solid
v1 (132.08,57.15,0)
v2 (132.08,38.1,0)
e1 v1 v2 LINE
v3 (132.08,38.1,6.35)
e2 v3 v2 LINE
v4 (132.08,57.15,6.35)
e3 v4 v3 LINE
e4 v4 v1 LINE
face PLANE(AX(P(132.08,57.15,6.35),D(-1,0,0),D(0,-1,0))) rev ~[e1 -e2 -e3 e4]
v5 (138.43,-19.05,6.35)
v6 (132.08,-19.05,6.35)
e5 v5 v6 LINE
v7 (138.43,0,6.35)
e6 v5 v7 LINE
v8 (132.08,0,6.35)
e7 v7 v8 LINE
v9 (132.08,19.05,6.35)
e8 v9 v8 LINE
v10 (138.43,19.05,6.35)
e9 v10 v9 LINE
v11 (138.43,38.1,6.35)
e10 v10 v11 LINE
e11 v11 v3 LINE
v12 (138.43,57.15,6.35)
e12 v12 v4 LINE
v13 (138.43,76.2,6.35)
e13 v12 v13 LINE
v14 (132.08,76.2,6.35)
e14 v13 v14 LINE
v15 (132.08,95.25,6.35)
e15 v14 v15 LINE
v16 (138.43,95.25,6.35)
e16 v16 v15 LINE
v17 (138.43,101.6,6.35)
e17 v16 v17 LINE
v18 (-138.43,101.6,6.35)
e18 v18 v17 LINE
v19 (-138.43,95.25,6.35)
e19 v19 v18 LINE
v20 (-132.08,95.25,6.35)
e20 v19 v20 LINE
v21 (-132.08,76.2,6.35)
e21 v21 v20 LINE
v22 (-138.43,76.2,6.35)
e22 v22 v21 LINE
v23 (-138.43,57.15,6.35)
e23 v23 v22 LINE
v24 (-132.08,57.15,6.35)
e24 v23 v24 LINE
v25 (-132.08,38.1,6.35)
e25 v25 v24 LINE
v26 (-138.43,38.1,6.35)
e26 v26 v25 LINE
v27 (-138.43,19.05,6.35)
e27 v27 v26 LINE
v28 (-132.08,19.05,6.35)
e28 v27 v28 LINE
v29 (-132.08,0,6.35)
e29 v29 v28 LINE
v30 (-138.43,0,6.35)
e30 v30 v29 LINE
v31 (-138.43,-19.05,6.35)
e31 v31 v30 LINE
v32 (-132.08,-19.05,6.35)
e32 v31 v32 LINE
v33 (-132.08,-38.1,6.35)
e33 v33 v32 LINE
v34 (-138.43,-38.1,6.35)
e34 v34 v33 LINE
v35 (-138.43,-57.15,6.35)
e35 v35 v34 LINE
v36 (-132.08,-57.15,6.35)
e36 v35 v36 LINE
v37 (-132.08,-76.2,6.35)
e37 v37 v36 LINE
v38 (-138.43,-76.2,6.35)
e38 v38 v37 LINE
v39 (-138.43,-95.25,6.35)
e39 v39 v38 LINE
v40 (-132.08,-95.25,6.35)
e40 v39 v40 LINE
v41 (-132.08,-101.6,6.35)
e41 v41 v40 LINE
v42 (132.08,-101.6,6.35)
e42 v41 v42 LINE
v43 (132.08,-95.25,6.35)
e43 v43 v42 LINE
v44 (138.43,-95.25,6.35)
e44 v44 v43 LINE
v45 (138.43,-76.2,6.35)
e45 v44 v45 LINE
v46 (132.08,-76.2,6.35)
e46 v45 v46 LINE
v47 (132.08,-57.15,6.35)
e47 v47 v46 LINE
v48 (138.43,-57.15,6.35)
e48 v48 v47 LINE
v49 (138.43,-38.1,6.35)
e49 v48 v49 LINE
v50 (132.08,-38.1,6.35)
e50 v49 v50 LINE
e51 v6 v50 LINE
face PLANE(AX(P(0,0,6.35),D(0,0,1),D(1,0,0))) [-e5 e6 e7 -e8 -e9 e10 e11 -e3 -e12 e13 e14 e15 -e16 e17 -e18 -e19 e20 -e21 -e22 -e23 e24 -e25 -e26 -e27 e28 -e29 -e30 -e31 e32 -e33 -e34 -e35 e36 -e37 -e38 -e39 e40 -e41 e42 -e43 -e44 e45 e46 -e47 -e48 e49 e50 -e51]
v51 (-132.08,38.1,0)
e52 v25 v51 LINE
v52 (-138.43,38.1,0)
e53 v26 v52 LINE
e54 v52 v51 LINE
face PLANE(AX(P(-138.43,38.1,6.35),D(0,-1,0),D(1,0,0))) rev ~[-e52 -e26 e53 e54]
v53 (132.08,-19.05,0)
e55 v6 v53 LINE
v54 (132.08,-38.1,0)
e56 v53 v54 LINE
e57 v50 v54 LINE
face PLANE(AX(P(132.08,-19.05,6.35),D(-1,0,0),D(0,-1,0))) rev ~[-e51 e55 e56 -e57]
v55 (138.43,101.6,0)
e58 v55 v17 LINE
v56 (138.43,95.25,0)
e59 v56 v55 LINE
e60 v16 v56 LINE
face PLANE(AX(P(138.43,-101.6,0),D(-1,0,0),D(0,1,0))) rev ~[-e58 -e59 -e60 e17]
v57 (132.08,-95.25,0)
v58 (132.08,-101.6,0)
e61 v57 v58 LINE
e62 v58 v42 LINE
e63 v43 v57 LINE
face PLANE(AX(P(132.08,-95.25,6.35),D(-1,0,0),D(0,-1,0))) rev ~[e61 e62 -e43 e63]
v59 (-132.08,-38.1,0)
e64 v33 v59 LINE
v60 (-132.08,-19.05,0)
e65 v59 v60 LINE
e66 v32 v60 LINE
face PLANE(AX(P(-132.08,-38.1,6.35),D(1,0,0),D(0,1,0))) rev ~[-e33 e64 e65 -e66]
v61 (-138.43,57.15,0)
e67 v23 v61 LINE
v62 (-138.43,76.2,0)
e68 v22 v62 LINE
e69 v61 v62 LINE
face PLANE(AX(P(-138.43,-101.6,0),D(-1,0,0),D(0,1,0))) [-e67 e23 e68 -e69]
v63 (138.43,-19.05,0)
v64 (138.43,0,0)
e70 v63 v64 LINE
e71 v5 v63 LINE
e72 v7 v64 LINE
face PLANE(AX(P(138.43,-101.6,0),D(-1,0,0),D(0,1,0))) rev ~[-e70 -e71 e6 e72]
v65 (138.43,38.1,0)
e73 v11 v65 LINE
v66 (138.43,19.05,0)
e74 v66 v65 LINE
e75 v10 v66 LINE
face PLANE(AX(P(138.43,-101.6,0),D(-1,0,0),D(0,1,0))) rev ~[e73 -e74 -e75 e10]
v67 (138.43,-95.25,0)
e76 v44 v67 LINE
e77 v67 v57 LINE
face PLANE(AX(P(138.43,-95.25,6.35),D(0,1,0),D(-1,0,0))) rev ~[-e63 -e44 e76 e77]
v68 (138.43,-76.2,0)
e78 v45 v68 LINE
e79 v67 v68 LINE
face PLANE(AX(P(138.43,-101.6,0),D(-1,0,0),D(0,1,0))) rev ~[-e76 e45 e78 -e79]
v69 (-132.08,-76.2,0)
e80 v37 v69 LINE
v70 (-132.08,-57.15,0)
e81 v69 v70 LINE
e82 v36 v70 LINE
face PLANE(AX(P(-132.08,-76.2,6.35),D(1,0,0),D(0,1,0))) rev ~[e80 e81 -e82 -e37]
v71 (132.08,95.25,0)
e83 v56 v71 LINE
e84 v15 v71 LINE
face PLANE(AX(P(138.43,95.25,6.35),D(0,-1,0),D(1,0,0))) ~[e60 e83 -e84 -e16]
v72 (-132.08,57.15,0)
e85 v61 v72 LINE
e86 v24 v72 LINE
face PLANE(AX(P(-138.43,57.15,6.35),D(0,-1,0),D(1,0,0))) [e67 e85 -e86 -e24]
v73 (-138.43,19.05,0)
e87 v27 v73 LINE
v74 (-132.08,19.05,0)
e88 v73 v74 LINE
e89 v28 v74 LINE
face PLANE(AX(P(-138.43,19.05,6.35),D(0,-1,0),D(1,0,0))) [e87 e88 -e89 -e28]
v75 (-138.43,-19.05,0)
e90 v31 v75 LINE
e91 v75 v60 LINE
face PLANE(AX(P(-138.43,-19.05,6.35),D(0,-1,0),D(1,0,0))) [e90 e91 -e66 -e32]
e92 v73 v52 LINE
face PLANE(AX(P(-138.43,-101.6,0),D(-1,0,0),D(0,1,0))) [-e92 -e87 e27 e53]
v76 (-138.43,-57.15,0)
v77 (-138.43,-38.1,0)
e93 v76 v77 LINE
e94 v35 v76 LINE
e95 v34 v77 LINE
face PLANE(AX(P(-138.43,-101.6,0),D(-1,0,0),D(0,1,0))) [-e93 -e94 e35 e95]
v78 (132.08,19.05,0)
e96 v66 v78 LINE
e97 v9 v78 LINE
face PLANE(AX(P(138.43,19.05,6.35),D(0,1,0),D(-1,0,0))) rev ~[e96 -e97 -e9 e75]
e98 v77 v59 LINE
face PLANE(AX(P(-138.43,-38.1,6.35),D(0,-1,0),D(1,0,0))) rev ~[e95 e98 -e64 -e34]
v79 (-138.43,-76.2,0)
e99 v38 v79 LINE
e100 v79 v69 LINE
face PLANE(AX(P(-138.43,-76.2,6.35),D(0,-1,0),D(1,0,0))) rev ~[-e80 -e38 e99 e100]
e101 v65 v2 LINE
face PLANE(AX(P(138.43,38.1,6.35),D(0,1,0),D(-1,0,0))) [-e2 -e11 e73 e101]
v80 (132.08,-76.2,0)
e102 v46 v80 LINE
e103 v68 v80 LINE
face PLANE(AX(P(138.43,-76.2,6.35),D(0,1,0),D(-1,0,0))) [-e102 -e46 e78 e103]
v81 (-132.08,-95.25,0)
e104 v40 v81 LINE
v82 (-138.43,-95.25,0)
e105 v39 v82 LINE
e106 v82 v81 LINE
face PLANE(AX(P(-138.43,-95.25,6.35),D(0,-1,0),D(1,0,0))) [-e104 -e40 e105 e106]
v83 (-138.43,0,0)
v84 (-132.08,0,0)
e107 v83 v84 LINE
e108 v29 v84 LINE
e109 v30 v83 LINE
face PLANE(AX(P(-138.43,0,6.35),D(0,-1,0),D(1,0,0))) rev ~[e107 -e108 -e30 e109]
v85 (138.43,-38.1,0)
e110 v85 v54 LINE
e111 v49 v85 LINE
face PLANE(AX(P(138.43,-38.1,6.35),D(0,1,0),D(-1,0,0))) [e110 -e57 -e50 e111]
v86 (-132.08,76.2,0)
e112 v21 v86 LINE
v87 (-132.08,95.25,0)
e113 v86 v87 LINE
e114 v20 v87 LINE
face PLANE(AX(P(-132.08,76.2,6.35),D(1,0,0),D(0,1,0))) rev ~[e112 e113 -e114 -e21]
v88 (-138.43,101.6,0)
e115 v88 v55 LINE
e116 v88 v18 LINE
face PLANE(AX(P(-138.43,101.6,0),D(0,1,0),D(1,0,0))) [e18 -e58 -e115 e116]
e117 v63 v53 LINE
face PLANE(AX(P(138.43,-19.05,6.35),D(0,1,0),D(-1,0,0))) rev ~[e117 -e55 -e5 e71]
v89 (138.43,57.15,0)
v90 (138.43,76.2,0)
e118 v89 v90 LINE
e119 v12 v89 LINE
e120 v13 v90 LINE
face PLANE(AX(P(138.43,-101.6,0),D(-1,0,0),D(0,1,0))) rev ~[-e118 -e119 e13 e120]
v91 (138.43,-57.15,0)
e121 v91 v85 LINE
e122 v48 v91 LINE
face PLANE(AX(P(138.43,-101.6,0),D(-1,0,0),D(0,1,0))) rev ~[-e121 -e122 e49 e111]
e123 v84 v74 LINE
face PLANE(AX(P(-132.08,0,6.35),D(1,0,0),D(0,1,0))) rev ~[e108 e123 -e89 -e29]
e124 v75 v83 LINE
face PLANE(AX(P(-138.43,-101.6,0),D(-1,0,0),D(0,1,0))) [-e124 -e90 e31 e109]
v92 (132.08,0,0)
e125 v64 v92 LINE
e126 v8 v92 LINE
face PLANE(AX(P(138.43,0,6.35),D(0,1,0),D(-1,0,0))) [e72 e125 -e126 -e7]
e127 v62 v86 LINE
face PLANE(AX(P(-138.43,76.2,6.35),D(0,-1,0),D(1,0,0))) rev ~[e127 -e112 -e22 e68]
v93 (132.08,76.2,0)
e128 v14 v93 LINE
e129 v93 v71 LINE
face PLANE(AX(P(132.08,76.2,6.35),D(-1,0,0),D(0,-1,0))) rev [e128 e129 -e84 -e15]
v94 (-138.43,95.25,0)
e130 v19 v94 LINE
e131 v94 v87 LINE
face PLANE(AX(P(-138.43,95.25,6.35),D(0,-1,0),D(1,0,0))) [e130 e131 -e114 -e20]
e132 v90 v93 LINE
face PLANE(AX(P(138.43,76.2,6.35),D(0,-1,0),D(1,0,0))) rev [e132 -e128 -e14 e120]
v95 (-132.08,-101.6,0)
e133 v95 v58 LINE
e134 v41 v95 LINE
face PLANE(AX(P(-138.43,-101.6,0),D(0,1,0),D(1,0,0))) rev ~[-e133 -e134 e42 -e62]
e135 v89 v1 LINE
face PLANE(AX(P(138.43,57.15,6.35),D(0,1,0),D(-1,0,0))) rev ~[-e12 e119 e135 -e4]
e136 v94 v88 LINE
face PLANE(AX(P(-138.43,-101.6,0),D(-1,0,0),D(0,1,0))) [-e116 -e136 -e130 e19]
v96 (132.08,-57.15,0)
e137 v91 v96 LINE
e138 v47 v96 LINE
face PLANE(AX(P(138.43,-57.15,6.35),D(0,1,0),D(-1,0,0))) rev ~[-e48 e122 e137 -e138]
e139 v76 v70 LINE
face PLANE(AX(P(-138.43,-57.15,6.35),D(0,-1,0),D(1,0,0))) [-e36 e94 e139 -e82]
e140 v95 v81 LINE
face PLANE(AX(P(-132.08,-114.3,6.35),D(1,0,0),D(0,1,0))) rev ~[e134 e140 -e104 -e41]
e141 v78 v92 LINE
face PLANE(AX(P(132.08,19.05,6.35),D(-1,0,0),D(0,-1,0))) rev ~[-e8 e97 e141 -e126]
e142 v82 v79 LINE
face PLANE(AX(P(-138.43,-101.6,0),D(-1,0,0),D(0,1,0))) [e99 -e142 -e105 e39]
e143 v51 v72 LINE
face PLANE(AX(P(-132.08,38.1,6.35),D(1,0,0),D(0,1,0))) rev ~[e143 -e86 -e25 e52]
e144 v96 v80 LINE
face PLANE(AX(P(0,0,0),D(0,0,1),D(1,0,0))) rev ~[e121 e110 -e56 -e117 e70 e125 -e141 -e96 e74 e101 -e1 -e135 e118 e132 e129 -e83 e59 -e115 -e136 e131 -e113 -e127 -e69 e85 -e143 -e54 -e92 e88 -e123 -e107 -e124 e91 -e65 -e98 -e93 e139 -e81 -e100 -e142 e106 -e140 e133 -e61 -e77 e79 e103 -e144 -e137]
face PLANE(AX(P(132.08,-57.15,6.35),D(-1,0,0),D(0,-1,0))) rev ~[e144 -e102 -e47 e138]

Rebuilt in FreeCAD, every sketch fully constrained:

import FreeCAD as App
import Part
import Sketcher

V = App.Vector
Q = App.Units.Quantity


def add_polygon(sketch, points):
    """Adds a closed chain of lines whose ends are joined by coincident constraints."""
    first, n = sketch.GeometryCount, len(points)
    for a, b in zip(points, points[1:] + points[:1]):
        sketch.addGeometry(Part.LineSegment(App.Vector(*a, 0), App.Vector(*b, 0)), False)
    for i in range(n):
        sketch.addConstraint(Sketcher.Constraint("Coincident", first + i, 2, first + (i + 1) % n, 1))

doc = App.newDocument("Part")
body = doc.addObject("PartDesign::Body", "Body")

# Sketch on XY plane
sketch1 = body.newObject("Sketcher::SketchObject", "Sketch")
sketch1.AttachmentSupport = (doc.getObject("XY_Plane"), [""])
sketch1.MapMode = "FlatFace"
add_polygon(sketch1, [(-138, 102), (-138, -102), (138, -102), (138, 102)])  # lines 0-3
sketch1.addConstraint([
    Sketcher.Constraint("Vertical", 0),
    Sketcher.Constraint("Horizontal", 1),
    Sketcher.Constraint("Vertical", 2),
    Sketcher.Constraint("Horizontal", 3),
    Sketcher.Constraint("Symmetric", 0, 2, 2, 2, -1, 1),
    Sketcher.Constraint("DistanceY", 0, 2, 0, 1, Q("8 in")),
    Sketcher.Constraint("DistanceX", 1, 1, 1, 2, Q("10.9 in")),
])
pad1 = body.newObject("PartDesign::Pad", "Pad")
pad1.Profile = sketch1
pad1.Length = Q("0.25 in")

# Sketch on XY plane
sketch2 = body.newObject("Sketcher::SketchObject", "Sketch001")
sketch2.AttachmentSupport = (doc.getObject("XY_Plane"), [""])
sketch2.MapMode = "FlatFace"
sketch2.AttachmentOffset = App.Placement(V(0, 0, 0.25 * 25.4), App.Rotation())
add_polygon(sketch2, [(-138, 95), (-138, 76), (-132, 76), (-132, 95)])  # lines 0-3
sketch2.addConstraint([
    Sketcher.Constraint("Vertical", 0),
    Sketcher.Constraint("Horizontal", 1),
    Sketcher.Constraint("Vertical", 2),
    Sketcher.Constraint("Horizontal", 3),
    Sketcher.Constraint("DistanceY", -1, 1, 0, 2, Q("3 in")),
    Sketcher.Constraint("DistanceX", 1, 1, 1, 2, Q("0.25 in")),
    Sketcher.Constraint("DistanceY", 0, 2, 0, 1, Q("0.75 in")),
    Sketcher.Constraint("DistanceX", 1, 2, -1, 1, Q("5.2 in")),
])
pocket1 = body.newObject("PartDesign::Pocket", "Pocket")
pocket1.Profile = sketch2
pocket1.Type = "ThroughAll"
doc.recompute()

linearpattern = body.newObject("PartDesign::LinearPattern", "LinearPattern")
linearpattern.Originals = [pocket1]
linearpattern.Direction = (doc.getObject("Y_Axis"), [""])
linearpattern.Mode = "offset"
linearpattern.Offset = Q("1.5 in")
linearpattern.Occurrences = 6
linearpattern.Reversed = True
body.Tip = linearpattern
doc.recompute()

mirrored = body.newObject("PartDesign::Mirrored", "Mirrored")
mirrored.Originals = [pocket1]
mirrored.MirrorPlane = (doc.getObject("YZ_Plane"), [""])
body.Tip = mirrored

# Sketch on XY plane
sketch3 = body.newObject("Sketcher::SketchObject", "Sketch002")
sketch3.AttachmentSupport = (doc.getObject("XY_Plane"), [""])
sketch3.MapMode = "FlatFace"
sketch3.AttachmentOffset = App.Placement(V(0, 0, 0.25 * 25.4), App.Rotation())
add_polygon(sketch3, [(138, 38), (138, 57), (132, 57), (132, 38)])  # lines 0-3
sketch3.addConstraint([
    Sketcher.Constraint("Vertical", 0),
    Sketcher.Constraint("Horizontal", 1),
    Sketcher.Constraint("Vertical", 2),
    Sketcher.Constraint("Horizontal", 3),
    Sketcher.Constraint("DistanceX", 1, 2, 1, 1, Q("0.25 in")),
    Sketcher.Constraint("DistanceY", 0, 1, 0, 2, Q("0.75 in")),
    Sketcher.Constraint("DistanceX", -1, 1, 1, 2, Q("5.2 in")),
    Sketcher.Constraint("DistanceY", -1, 1, 2, 2, Q("1.5 in")),
])
pocket2 = body.newObject("PartDesign::Pocket", "Pocket001")
pocket2.Profile = sketch3
pocket2.Type = "ThroughAll"

# Sketch on XY plane
sketch4 = body.newObject("Sketcher::SketchObject", "Sketch003")
sketch4.AttachmentSupport = (doc.getObject("XY_Plane"), [""])
sketch4.MapMode = "FlatFace"
sketch4.AttachmentOffset = App.Placement(V(0, 0, 0.25 * 25.4), App.Rotation())
add_polygon(sketch4, [(138, 0), (138, 19), (132, 19), (132, 0)])  # lines 0-3
sketch4.addConstraint([
    Sketcher.Constraint("Vertical", 0),
    Sketcher.Constraint("Horizontal", 1),
    Sketcher.Constraint("Vertical", 2),
    Sketcher.Constraint("Horizontal", 3),
    Sketcher.Constraint("PointOnObject", 2, 2, -1),
    Sketcher.Constraint("DistanceX", 1, 2, 1, 1, Q("0.25 in")),
    Sketcher.Constraint("DistanceY", 0, 1, 0, 2, Q("0.75 in")),
    Sketcher.Constraint("DistanceX", -1, 1, 1, 2, Q("5.2 in")),
])
pocket3 = body.newObject("PartDesign::Pocket", "Pocket002")
pocket3.Profile = sketch4
pocket3.Type = "ThroughAll"

# Sketch on XY plane
sketch5 = body.newObject("Sketcher::SketchObject", "Sketch004")
sketch5.AttachmentSupport = (doc.getObject("XY_Plane"), [""])
sketch5.MapMode = "FlatFace"
sketch5.AttachmentOffset = App.Placement(V(0, 0, 0.25 * 25.4), App.Rotation())
add_polygon(sketch5, [(138, -38), (138, -19), (132, -19), (132, -38)])  # lines 0-3
sketch5.addConstraint([
    Sketcher.Constraint("Vertical", 0),
    Sketcher.Constraint("Horizontal", 1),
    Sketcher.Constraint("Vertical", 2),
    Sketcher.Constraint("Horizontal", 3),
    Sketcher.Constraint("DistanceX", 1, 2, 1, 1, Q("0.25 in")),
    Sketcher.Constraint("DistanceY", 0, 1, 0, 2, Q("0.75 in")),
    Sketcher.Constraint("DistanceX", -1, 1, 1, 2, Q("5.2 in")),
    Sketcher.Constraint("DistanceY", 2, 2, -1, 1, Q("1.5 in")),
])
pocket4 = body.newObject("PartDesign::Pocket", "Pocket003")
pocket4.Profile = sketch5
pocket4.Type = "ThroughAll"

# Sketch on XY plane
sketch6 = body.newObject("Sketcher::SketchObject", "Sketch005")
sketch6.AttachmentSupport = (doc.getObject("XY_Plane"), [""])
sketch6.MapMode = "FlatFace"
sketch6.AttachmentOffset = App.Placement(V(0, 0, 0.25 * 25.4), App.Rotation())
add_polygon(sketch6, [(138, -76), (138, -57), (132, -57), (132, -76)])  # lines 0-3
sketch6.addConstraint([
    Sketcher.Constraint("Vertical", 0),
    Sketcher.Constraint("Horizontal", 1),
    Sketcher.Constraint("Vertical", 2),
    Sketcher.Constraint("Horizontal", 3),
    Sketcher.Constraint("DistanceY", 2, 2, -1, 1, Q("3 in")),
    Sketcher.Constraint("DistanceX", 1, 2, 1, 1, Q("0.25 in")),
    Sketcher.Constraint("DistanceY", 0, 1, 0, 2, Q("0.75 in")),
    Sketcher.Constraint("DistanceX", -1, 1, 1, 2, Q("5.2 in")),
])
pocket5 = body.newObject("PartDesign::Pocket", "Pocket004")
pocket5.Profile = sketch6
pocket5.Type = "ThroughAll"

# Sketch on XY plane
sketch7 = body.newObject("Sketcher::SketchObject", "Sketch006")
sketch7.AttachmentSupport = (doc.getObject("XY_Plane"), [""])
sketch7.MapMode = "FlatFace"
sketch7.AttachmentOffset = App.Placement(V(0, 0, 0.25 * 25.4), App.Rotation())
add_polygon(sketch7, [(138, -114), (138, -95), (132, -95), (132, -114)])  # lines 0-3
sketch7.addConstraint([
    Sketcher.Constraint("Vertical", 0),
    Sketcher.Constraint("Horizontal", 1),
    Sketcher.Constraint("Vertical", 2),
    Sketcher.Constraint("Horizontal", 3),
    Sketcher.Constraint("DistanceX", 1, 2, 1, 1, Q("0.25 in")),
    Sketcher.Constraint("DistanceY", 0, 1, 0, 2, Q("0.75 in")),
    Sketcher.Constraint("DistanceX", -1, 1, 1, 2, Q("5.2 in")),
    Sketcher.Constraint("DistanceY", 2, 2, -1, 1, Q("4.5 in")),
])
pocket6 = body.newObject("PartDesign::Pocket", "Pocket005")
pocket6.Profile = sketch7
pocket6.Type = "ThroughAll"

doc.recompute()
